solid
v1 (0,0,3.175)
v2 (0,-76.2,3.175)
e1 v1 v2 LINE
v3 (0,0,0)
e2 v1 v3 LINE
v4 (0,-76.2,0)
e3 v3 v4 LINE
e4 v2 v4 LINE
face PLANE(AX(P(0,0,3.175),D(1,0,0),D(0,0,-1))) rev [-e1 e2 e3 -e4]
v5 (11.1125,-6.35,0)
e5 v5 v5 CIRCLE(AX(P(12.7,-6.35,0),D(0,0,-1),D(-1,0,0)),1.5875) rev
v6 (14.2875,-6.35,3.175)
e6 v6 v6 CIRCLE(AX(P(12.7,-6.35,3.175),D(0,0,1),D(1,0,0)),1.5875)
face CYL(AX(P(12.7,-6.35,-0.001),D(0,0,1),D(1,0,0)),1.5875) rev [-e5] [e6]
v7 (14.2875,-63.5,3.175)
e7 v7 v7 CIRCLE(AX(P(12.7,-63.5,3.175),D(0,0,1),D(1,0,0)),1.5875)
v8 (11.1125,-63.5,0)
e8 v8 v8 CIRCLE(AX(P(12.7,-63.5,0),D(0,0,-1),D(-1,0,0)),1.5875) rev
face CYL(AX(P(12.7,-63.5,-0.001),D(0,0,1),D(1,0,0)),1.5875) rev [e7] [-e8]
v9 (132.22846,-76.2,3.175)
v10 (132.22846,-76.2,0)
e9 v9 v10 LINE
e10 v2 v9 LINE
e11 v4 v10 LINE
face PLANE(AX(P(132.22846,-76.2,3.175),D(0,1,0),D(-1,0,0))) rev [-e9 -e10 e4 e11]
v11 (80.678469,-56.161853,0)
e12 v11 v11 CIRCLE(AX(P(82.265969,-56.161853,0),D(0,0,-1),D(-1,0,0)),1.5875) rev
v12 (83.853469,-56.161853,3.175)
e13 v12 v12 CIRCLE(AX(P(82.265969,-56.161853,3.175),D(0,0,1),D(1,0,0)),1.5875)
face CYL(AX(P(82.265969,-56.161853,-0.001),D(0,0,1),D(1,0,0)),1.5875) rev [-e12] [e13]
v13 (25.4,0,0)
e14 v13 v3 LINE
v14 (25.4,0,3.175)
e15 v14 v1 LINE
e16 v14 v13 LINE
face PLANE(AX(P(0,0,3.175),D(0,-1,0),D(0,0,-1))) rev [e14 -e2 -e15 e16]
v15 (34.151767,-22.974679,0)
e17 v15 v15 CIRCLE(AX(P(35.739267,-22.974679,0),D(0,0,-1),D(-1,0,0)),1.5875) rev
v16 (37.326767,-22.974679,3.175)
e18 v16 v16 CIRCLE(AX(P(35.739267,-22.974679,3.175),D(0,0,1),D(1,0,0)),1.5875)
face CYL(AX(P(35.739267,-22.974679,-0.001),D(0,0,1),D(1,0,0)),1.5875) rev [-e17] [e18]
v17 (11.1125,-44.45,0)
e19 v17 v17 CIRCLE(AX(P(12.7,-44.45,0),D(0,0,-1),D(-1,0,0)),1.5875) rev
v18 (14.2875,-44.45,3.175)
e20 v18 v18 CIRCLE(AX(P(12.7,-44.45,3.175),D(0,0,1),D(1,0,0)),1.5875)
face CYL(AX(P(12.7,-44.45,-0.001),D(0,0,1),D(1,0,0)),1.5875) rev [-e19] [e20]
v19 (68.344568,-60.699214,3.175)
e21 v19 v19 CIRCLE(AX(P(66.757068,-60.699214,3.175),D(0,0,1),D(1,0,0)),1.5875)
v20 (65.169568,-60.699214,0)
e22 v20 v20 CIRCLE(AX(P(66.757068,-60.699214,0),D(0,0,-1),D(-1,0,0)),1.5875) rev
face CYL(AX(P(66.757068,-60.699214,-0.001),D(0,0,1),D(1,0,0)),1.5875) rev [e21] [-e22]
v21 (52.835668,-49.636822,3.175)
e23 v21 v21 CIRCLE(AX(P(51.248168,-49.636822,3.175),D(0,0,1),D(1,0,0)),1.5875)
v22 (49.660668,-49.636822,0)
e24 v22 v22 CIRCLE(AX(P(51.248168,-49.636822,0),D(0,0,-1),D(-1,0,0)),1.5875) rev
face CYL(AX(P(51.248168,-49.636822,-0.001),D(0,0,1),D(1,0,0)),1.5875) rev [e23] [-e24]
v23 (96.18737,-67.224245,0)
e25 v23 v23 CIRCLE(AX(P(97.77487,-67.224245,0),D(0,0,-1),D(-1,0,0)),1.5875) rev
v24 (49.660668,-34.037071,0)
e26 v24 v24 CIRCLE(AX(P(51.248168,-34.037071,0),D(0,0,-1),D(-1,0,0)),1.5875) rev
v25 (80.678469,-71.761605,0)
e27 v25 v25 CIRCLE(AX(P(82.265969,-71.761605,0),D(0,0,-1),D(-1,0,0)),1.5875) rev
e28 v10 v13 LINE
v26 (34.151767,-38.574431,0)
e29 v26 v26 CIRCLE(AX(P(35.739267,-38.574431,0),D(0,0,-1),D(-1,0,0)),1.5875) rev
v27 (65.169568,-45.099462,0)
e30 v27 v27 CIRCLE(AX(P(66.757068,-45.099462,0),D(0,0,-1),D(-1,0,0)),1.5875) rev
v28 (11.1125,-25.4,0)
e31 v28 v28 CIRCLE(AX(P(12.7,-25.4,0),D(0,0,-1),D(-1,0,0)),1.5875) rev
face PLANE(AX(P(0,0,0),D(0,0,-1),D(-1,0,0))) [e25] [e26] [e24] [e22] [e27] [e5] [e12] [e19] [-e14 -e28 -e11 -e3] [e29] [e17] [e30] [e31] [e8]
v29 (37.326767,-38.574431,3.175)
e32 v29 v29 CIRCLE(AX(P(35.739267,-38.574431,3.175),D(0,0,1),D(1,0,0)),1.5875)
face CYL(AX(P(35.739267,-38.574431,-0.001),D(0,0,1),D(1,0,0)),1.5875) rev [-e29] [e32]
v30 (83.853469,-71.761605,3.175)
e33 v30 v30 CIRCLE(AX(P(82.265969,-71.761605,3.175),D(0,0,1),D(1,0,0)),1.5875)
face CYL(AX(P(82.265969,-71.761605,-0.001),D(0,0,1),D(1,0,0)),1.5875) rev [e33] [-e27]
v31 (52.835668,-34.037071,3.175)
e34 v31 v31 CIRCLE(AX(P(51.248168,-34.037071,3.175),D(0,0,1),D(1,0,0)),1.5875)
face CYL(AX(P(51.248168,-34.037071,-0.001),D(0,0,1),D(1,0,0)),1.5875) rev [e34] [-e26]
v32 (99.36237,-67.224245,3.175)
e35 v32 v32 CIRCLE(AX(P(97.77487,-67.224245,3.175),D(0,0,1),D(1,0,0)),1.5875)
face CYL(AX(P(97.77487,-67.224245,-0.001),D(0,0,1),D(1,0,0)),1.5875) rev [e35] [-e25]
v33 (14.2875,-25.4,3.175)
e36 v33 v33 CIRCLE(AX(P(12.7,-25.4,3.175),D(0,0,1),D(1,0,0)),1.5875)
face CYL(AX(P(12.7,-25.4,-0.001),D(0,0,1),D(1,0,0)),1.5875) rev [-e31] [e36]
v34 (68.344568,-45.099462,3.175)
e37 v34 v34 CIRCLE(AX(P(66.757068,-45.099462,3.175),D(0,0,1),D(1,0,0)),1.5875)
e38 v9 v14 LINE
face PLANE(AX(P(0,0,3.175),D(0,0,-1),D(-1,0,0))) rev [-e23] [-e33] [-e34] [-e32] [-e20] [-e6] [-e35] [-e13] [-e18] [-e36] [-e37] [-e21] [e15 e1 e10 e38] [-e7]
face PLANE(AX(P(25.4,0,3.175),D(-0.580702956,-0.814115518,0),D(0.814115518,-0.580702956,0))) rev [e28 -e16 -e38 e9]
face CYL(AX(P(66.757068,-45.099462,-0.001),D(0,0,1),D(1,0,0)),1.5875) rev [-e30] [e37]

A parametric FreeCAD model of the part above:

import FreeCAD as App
import Part
import Sketcher

V = App.Vector
Q = App.Units.Quantity


def add_polygon(sketch, points):
    """Adds a closed chain of lines whose ends are joined by coincident constraints."""
    first, n = sketch.GeometryCount, len(points)
    for a, b in zip(points, points[1:] + points[:1]):
        sketch.addGeometry(Part.LineSegment(App.Vector(*a, 0), App.Vector(*b, 0)), False)
    for i in range(n):
        sketch.addConstraint(Sketcher.Constraint("Coincident", first + i, 2, first + (i + 1) % n, 1))

doc = App.newDocument("Part")
params = doc.addObject("Spreadsheet::Sheet", "Params")
for row, (alias, value) in enumerate([
    ("sketch1_width", "1 in"),
    ("sketch1_height", "3 in"),
    ("pad1_length", "0.125 in"),
    ("sketch2_diameter", "0.125 in"),
    ("sketch3_diameter", "0.125 in"),
    ("sketch4_diameter", "0.125 in"),
    ("sketch5_diameter", "0.125 in"),
    ("sketch6_diameter", "0.125 in"),
    ("sketch7_diameter", "0.125 in"),
    ("sketch8_diameter", "0.125 in"),
    ("sketch9_diameter", "0.125 in"),
    ("sketch10_diameter", "0.125 in"),
    ("sketch11_diameter", "0.125 in"),
    ("sketch12_diameter", "0.125 in"),
    ("sketch13_diameter", "0.125 in"),
    ("sketch14_diameter", "0.125 in"),
], start=1):
    params.set(f"A{row}", alias)
    params.set(f"B{row}", "=" + value)
    params.setAlias(f"B{row}", alias)

body = doc.addObject("PartDesign::Body", "Body")

# Sketch on XY plane
sketch1 = body.newObject("Sketcher::SketchObject", "Sketch")
sketch1.AttachmentSupport = (doc.getObject("XY_Plane"), [""])
sketch1.MapMode = "FlatFace"
add_polygon(sketch1, [(25, 0), (0, 0), (0, -76), (132, -76)])  # lines 0-3
sketch1.addConstraint(Sketcher.Constraint("Horizontal", 0))
sketch1.addConstraint(Sketcher.Constraint("Vertical", 1))
sketch1.addConstraint(Sketcher.Constraint("Horizontal", 2))
sketch1.addConstraint(Sketcher.Constraint("Coincident", 0, 2, -1, 1))
sketch1.addConstraint(Sketcher.Constraint("DistanceX", 0, 2, 0, 1, Q("1 in")))
sketch1.addConstraint(Sketcher.Constraint("DistanceY", 1, 2, 1, 1, Q("3 in")))
sketch1.addConstraint(Sketcher.Constraint("Angle", 3, Q("144.5 deg")))
sketch1.setExpression("Constraints[8]", "Params.sketch1_width")
sketch1.setExpression("Constraints[9]", "Params.sketch1_height")
pad1 = body.newObject("PartDesign::Pad", "Pad")
pad1.Profile = sketch1
pad1.setExpression("Length", "Params.pad1_length")

# Sketch on XY plane
sketch2 = body.newObject("Sketcher::SketchObject", "Sketch001")
sketch2.AttachmentSupport = (doc.getObject("XY_Plane"), [""])
sketch2.MapMode = "FlatFace"
sketch2.AttachmentOffset = App.Placement(V(0, 0, 0.125 * 25.4), App.Rotation())
sketch2.addGeometry(Part.Circle(V(12.7, -6.3, 0), V(0, 0, 1), 1.6), False)
sketch2.addConstraint(Sketcher.Constraint("Diameter", 0, Q("0.125 in")))
sketch2.addConstraint(Sketcher.Constraint("DistanceX", -1, 1, 0, 3, Q("0.5 in")))
sketch2.addConstraint(Sketcher.Constraint("DistanceY", 0, 3, -1, 1, Q("0.25 in")))
sketch2.setExpression("Constraints[0]", "Params.sketch2_diameter")
pocket1 = body.newObject("PartDesign::Pocket", "Pocket")
pocket1.Profile = sketch2
pocket1.Type = "UpToFirst"

# Sketch on XY plane
sketch3 = body.newObject("Sketcher::SketchObject", "Sketch002")
sketch3.AttachmentSupport = (doc.getObject("XY_Plane"), [""])
sketch3.MapMode = "FlatFace"
sketch3.AttachmentOffset = App.Placement(V(0, 0, 0.125 * 25.4), App.Rotation())
sketch3.addGeometry(Part.Circle(V(12.7, -25.4, 0), V(0, 0, 1), 1.6), False)
sketch3.addConstraint(Sketcher.Constraint("Diameter", 0, Q("0.125 in")))
sketch3.addConstraint(Sketcher.Constraint("DistanceY", 0, 3, -1, 1, Q("1 in")))
sketch3.addConstraint(Sketcher.Constraint("DistanceX", -1, 1, 0, 3, Q("0.5 in")))
sketch3.setExpression("Constraints[0]", "Params.sketch3_diameter")
pocket2 = body.newObject("PartDesign::Pocket", "Pocket001")
pocket2.Profile = sketch3
pocket2.Type = "UpToFirst"

# Sketch on XY plane
sketch4 = body.newObject("Sketcher::SketchObject", "Sketch003")
sketch4.AttachmentSupport = (doc.getObject("XY_Plane"), [""])
sketch4.MapMode = "FlatFace"
sketch4.AttachmentOffset = App.Placement(V(0, 0, 0.125 * 25.4), App.Rotation())
sketch4.addGeometry(Part.Circle(V(12.7, -44.5, 0), V(0, 0, 1), 1.6), False)
sketch4.addConstraint(Sketcher.Constraint("Diameter", 0, Q("0.125 in")))
sketch4.addConstraint(Sketcher.Constraint("DistanceX", -1, 1, 0, 3, Q("0.5 in")))
sketch4.addConstraint(Sketcher.Constraint("DistanceY", 0, 3, -1, 1, Q("1.75 in")))
sketch4.setExpression("Constraints[0]", "Params.sketch4_diameter")
pocket3 = body.newObject("PartDesign::Pocket", "Pocket002")
pocket3.Profile = sketch4
pocket3.Type = "UpToFirst"

# Sketch on XY plane
sketch5 = body.newObject("Sketcher::SketchObject", "Sketch004")
sketch5.AttachmentSupport = (doc.getObject("XY_Plane"), [""])
sketch5.MapMode = "FlatFace"
sketch5.AttachmentOffset = App.Placement(V(0, 0, 0.125 * 25.4), App.Rotation())
sketch5.addGeometry(Part.Circle(V(12.7, -63.5, 0), V(0, 0, 1), 1.6), False)
sketch5.addConstraint(Sketcher.Constraint("Diameter", 0, Q("0.125 in")))
sketch5.addConstraint(Sketcher.Constraint("DistanceX", -1, 1, 0, 3, Q("0.5 in")))
sketch5.addConstraint(Sketcher.Constraint("DistanceY", 0, 3, -1, 1, Q("2.5 in")))
sketch5.setExpression("Constraints[0]", "Params.sketch5_diameter")
pocket4 = body.newObject("PartDesign::Pocket", "Pocket003")
pocket4.Profile = sketch5
pocket4.Type = "UpToFirst"

# Sketch on XY plane
sketch6 = body.newObject("Sketcher::SketchObject", "Sketch005")
sketch6.AttachmentSupport = (doc.getObject("XY_Plane"), [""])
sketch6.MapMode = "FlatFace"
sketch6.AttachmentOffset = App.Placement(V(0, 0, 0.125 * 25.4), App.Rotation())
sketch6.addGeometry(Part.Circle(V(35.7, -23, 0), V(0, 0, 1), 1.6), False)
sketch6.addConstraint(Sketcher.Constraint("Diameter", 0, Q("0.125 in")))
sketch6.addConstraint(Sketcher.Constraint("DistanceY", 0, 3, -1, 1, Q("22.974679 mm")))
sketch6.addConstraint(Sketcher.Constraint("DistanceX", -1, 1, 0, 3, Q("35.739267 mm")))
sketch6.setExpression("Constraints[0]", "Params.sketch6_diameter")
pocket5 = body.newObject("PartDesign::Pocket", "Pocket004")
pocket5.Profile = sketch6
pocket5.Type = "UpToFirst"

# Sketch on XY plane
sketch7 = body.newObject("Sketcher::SketchObject", "Sketch006")
sketch7.AttachmentSupport = (doc.getObject("XY_Plane"), [""])
sketch7.MapMode = "FlatFace"
sketch7.AttachmentOffset = App.Placement(V(0, 0, 0.125 * 25.4), App.Rotation())
sketch7.addGeometry(Part.Circle(V(51.2, -34, 0), V(0, 0, 1), 1.6), False)
sketch7.addConstraint(Sketcher.Constraint("Diameter", 0, Q("0.125 in")))
sketch7.addConstraint(Sketcher.Constraint("DistanceY", 0, 3, -1, 1, Q("34.037071 mm")))
sketch7.addConstraint(Sketcher.Constraint("DistanceX", -1, 1, 0, 3, Q("51.248168 mm")))
sketch7.setExpression("Constraints[0]", "Params.sketch7_diameter")
pocket6 = body.newObject("PartDesign::Pocket", "Pocket005")
pocket6.Profile = sketch7
pocket6.Type = "UpToFirst"

# Sketch on XY plane
sketch8 = body.newObject("Sketcher::SketchObject", "Sketch007")
sketch8.AttachmentSupport = (doc.getObject("XY_Plane"), [""])
sketch8.MapMode = "FlatFace"
sketch8.AttachmentOffset = App.Placement(V(0, 0, 0.125 * 25.4), App.Rotation())
sketch8.addGeometry(Part.Circle(V(66.8, -45.1, 0), V(0, 0, 1), 1.6), False)
sketch8.addConstraint(Sketcher.Constraint("Diameter", 0, Q("0.125 in")))
sketch8.addConstraint(Sketcher.Constraint("DistanceX", -1, 1, 0, 3, Q("66.757068 mm")))
sketch8.addConstraint(Sketcher.Constraint("DistanceY", 0, 3, -1, 1, Q("45.099462 mm")))
sketch8.setExpression("Constraints[0]", "Params.sketch8_diameter")
pocket7 = body.newObject("PartDesign::Pocket", "Pocket006")
pocket7.Profile = sketch8
pocket7.Type = "UpToFirst"

# Sketch on XY plane
sketch9 = body.newObject("Sketcher::SketchObject", "Sketch008")
sketch9.AttachmentSupport = (doc.getObject("XY_Plane"), [""])
sketch9.MapMode = "FlatFace"
sketch9.AttachmentOffset = App.Placement(V(0, 0, 0.125 * 25.4), App.Rotation())
sketch9.addGeometry(Part.Circle(V(82.3, -56.2, 0), V(0, 0, 1), 1.6), False)
sketch9.addConstraint(Sketcher.Constraint("Diameter", 0, Q("0.125 in")))
sketch9.addConstraint(Sketcher.Constraint("DistanceX", -1, 1, 0, 3, Q("82.265969 mm")))
sketch9.addConstraint(Sketcher.Constraint("DistanceY", 0, 3, -1, 1, Q("56.161853 mm")))
sketch9.setExpression("Constraints[0]", "Params.sketch9_diameter")
pocket8 = body.newObject("PartDesign::Pocket", "Pocket007")
pocket8.Profile = sketch9
pocket8.Type = "UpToFirst"

# Sketch on XY plane
sketch10 = body.newObject("Sketcher::SketchObject", "Sketch009")
sketch10.AttachmentSupport = (doc.getObject("XY_Plane"), [""])
sketch10.MapMode = "FlatFace"
sketch10.AttachmentOffset = App.Placement(V(0, 0, 0.125 * 25.4), App.Rotation())
sketch10.addGeometry(Part.Circle(V(97.8, -67.2, 0), V(0, 0, 1), 1.6), False)
sketch10.addConstraint(Sketcher.Constraint("Diameter", 0, Q("0.125 in")))
sketch10.addConstraint(Sketcher.Constraint("DistanceX", -1, 1, 0, 3, Q("97.77487 mm")))
sketch10.addConstraint(Sketcher.Constraint("DistanceY", 0, 3, -1, 1, Q("67.224245 mm")))
sketch10.setExpression("Constraints[0]", "Params.sketch10_diameter")
pocket9 = body.newObject("PartDesign::Pocket", "Pocket008")
pocket9.Profile = sketch10
pocket9.Type = "UpToFirst"

# Sketch on XY plane
sketch11 = body.newObject("Sketcher::SketchObject", "Sketch010")
sketch11.AttachmentSupport = (doc.getObject("XY_Plane"), [""])
sketch11.MapMode = "FlatFace"
sketch11.AttachmentOffset = App.Placement(V(0, 0, 0.125 * 25.4), App.Rotation())
sketch11.addGeometry(Part.Circle(V(35.7, -38.6, 0), V(0, 0, 1), 1.6), False)
sketch11.addConstraint(Sketcher.Constraint("Diameter", 0, Q("0.125 in")))
sketch11.addConstraint(Sketcher.Constraint("DistanceY", 0, 3, -1, 1, Q("38.574431 mm")))
sketch11.addConstraint(Sketcher.Constraint("DistanceX", -1, 1, 0, 3, Q("35.739267 mm")))
sketch11.setExpression("Constraints[0]", "Params.sketch11_diameter")
pocket10 = body.newObject("PartDesign::Pocket", "Pocket009")
pocket10.Profile = sketch11
pocket10.Type = "UpToFirst"

# Sketch on XY plane
sketch12 = body.newObject("Sketcher::SketchObject", "Sketch011")
sketch12.AttachmentSupport = (doc.getObject("XY_Plane"), [""])
sketch12.MapMode = "FlatFace"
sketch12.AttachmentOffset = App.Placement(V(0, 0, 0.125 * 25.4), App.Rotation())
sketch12.addGeometry(Part.Circle(V(51.2, -49.6, 0), V(0, 0, 1), 1.6), False)
sketch12.addConstraint(Sketcher.Constraint("Diameter", 0, Q("0.125 in")))
sketch12.addConstraint(Sketcher.Constraint("DistanceX", -1, 1, 0, 3, Q("51.248168 mm")))
sketch12.addConstraint(Sketcher.Constraint("DistanceY", 0, 3, -1, 1, Q("49.636822 mm")))
sketch12.setExpression("Constraints[0]", "Params.sketch12_diameter")
pocket11 = body.newObject("PartDesign::Pocket", "Pocket010")
pocket11.Profile = sketch12
pocket11.Type = "UpToFirst"

# Sketch on XY plane
sketch13 = body.newObject("Sketcher::SketchObject", "Sketch012")
sketch13.AttachmentSupport = (doc.getObject("XY_Plane"), [""])
sketch13.MapMode = "FlatFace"
sketch13.AttachmentOffset = App.Placement(V(0, 0, 0.125 * 25.4), App.Rotation())
sketch13.addGeometry(Part.Circle(V(66.8, -60.7, 0), V(0, 0, 1), 1.6), False)
sketch13.addConstraint(Sketcher.Constraint("Diameter", 0, Q("0.125 in")))
sketch13.addConstraint(Sketcher.Constraint("DistanceX", -1, 1, 0, 3, Q("66.757068 mm")))
sketch13.addConstraint(Sketcher.Constraint("DistanceY", 0, 3, -1, 1, Q("60.699214 mm")))
sketch13.setExpression("Constraints[0]", "Params.sketch13_diameter")
pocket12 = body.newObject("PartDesign::Pocket", "Pocket011")
pocket12.Profile = sketch13
pocket12.Type = "UpToFirst"

# Sketch on XY plane
sketch14 = body.newObject("Sketcher::SketchObject", "Sketch013")
sketch14.AttachmentSupport = (doc.getObject("XY_Plane"), [""])
sketch14.MapMode = "FlatFace"
sketch14.AttachmentOffset = App.Placement(V(0, 0, 0.125 * 25.4), App.Rotation())
sketch14.addGeometry(Part.Circle(V(82.3, -71.8, 0), V(0, 0, 1), 1.6), False)
sketch14.addConstraint(Sketcher.Constraint("Diameter", 0, Q("0.125 in")))
sketch14.addConstraint(Sketcher.Constraint("DistanceX", -1, 1, 0, 3, Q("82.265969 mm")))
sketch14.addConstraint(Sketcher.Constraint("DistanceY", 0, 3, -1, 1, Q("71.761605 mm")))
sketch14.setExpression("Constraints[0]", "Params.sketch14_diameter")
pocket13 = body.newObject("PartDesign::Pocket", "Pocket012")
pocket13.Profile = sketch14
pocket13.Type = "UpToFirst"

doc.recompute()
